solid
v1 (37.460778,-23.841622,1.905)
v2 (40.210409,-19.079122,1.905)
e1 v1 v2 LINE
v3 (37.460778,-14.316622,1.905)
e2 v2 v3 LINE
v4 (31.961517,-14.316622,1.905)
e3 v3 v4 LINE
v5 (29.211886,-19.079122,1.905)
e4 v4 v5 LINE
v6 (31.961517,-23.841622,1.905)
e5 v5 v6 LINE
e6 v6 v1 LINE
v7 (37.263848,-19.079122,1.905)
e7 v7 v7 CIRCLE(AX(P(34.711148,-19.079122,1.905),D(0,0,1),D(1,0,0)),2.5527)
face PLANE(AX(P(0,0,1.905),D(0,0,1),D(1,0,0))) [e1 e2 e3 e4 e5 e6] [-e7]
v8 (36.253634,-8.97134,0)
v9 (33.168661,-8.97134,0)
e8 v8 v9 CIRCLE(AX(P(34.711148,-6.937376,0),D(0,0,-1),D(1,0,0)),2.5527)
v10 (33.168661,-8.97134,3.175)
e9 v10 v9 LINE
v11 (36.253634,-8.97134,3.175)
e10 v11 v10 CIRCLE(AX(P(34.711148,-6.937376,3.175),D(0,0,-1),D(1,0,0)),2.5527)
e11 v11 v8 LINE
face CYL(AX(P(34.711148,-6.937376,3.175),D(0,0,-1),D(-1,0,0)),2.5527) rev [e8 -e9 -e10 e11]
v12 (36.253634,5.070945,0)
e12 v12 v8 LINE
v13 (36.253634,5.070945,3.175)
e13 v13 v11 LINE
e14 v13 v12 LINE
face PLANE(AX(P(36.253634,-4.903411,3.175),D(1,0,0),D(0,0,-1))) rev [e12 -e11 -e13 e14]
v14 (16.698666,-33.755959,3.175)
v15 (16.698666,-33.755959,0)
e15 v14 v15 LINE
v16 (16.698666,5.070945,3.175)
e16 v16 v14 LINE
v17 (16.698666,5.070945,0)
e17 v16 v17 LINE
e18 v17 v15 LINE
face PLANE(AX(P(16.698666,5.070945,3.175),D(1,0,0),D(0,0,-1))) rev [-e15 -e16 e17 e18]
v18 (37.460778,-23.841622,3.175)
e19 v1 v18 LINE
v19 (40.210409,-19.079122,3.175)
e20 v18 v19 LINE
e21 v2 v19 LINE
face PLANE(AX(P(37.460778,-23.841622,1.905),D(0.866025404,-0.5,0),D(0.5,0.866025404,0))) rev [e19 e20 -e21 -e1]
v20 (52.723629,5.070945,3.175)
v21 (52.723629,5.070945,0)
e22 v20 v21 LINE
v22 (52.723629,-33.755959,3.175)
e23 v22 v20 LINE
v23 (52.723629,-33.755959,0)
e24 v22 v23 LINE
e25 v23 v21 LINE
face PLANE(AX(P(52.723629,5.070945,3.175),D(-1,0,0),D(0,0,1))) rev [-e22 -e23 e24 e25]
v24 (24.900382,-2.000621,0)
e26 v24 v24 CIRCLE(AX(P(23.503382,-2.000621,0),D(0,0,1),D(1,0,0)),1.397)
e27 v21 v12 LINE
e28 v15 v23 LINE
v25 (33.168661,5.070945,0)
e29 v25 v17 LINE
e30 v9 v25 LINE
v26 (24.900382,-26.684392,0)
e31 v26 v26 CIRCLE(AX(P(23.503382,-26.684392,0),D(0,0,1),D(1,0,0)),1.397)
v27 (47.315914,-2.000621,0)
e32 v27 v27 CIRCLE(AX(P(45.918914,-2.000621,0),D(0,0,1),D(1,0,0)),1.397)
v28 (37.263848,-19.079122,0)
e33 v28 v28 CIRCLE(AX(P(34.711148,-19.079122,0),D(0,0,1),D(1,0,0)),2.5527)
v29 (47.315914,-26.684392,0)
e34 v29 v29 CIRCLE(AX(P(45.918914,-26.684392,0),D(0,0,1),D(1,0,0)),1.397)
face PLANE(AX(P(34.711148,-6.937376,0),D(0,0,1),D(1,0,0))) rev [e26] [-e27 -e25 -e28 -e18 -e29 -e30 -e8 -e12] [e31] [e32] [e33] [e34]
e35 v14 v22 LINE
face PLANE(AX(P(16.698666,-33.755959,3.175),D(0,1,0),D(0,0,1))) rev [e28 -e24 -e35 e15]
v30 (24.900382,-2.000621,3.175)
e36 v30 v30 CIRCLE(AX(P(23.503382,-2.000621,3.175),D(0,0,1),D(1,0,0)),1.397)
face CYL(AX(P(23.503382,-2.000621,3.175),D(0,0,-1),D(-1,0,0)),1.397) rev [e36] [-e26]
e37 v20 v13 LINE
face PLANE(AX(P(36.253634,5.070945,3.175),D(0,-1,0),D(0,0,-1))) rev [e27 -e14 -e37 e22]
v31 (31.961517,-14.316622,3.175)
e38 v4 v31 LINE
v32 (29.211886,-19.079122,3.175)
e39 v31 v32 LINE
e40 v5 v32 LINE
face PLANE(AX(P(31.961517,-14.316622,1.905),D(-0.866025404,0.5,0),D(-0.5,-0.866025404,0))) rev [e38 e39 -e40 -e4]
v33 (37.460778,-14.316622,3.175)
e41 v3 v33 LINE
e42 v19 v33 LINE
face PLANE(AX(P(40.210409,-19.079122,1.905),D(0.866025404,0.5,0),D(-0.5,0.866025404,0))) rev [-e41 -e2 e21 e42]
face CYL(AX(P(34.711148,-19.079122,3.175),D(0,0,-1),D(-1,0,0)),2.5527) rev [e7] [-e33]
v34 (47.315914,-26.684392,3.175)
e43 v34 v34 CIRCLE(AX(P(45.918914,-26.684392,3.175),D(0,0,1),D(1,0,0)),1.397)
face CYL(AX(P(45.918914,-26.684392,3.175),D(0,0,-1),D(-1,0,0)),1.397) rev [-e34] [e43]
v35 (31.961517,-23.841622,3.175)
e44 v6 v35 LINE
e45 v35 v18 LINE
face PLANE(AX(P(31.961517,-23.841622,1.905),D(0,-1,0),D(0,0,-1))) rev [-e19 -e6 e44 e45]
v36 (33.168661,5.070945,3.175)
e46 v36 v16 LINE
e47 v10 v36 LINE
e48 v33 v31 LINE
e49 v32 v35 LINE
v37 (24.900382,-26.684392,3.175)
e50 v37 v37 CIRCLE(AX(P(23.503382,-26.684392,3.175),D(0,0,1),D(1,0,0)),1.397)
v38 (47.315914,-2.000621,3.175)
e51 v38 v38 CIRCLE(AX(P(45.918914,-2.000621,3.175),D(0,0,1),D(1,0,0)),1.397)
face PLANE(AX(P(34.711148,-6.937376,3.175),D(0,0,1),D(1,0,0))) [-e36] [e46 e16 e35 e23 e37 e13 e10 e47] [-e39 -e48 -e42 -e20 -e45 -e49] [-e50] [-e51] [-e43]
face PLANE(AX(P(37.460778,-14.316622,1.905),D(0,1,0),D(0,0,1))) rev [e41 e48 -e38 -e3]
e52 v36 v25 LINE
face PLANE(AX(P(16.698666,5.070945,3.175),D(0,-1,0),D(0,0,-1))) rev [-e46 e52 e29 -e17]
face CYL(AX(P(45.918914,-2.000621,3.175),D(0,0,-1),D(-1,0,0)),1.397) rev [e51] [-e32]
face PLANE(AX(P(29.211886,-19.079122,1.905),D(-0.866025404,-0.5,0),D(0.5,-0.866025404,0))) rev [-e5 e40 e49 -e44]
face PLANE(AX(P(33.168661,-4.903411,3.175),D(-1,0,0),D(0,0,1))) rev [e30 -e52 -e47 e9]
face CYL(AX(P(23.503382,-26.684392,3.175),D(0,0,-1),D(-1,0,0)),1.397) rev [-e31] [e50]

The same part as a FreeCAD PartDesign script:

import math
import FreeCAD as App
import Part
import Sketcher
from FreeCAD import Vector
Q = App.Units.Quantity

doc = App.newDocument("Part")
body = doc.addObject("PartDesign::Body", "Body")

# Sketch on XY plane
sketch1 = doc.addObject("Sketcher::SketchObject", "Sketch")
body.addObject(sketch1)
sketch1.AttachmentSupport = (doc.XY_Plane, [""])
sketch1.MapMode = "FlatFace"
sketch1.addGeometry([
    Part.LineSegment(Vector(33.2, 5.1, 0), Vector(16.7, 5.1, 0)),  # 0
    Part.LineSegment(Vector(16.7, 5.1, 0), Vector(16.7, -33.8, 0)),  # 1
    Part.LineSegment(Vector(16.7, -33.8, 0), Vector(52.7, -33.8, 0)),  # 2
    Part.LineSegment(Vector(52.7, -33.8, 0), Vector(52.7, 5.1, 0)),  # 3
    Part.LineSegment(Vector(52.7, 5.1, 0), Vector(36.3, 5.1, 0)),  # 4
    Part.LineSegment(Vector(36.3, 5.1, 0), Vector(36.3, -9, 0)),  # 5
    Part.ArcOfCircle(Part.Circle(Vector(34.7, -6.9, 0), Vector(0, 0, 1), 2.6), math.radians(-127), math.radians(-53)),  # 6
    Part.LineSegment(Vector(33.2, -9, 0), Vector(33.2, 5.1, 0)),  # 7
    Part.Circle(Vector(45.9, -26.7, 0), Vector(0, 0, 1), 1.4),  # 8
    Part.Circle(Vector(23.5, -26.7, 0), Vector(0, 0, 1), 1.4),  # 9
    Part.Circle(Vector(34.7, -19.1, 0), Vector(0, 0, 1), 2.6),  # 10
    Part.Circle(Vector(45.9, -2, 0), Vector(0, 0, 1), 1.4),  # 11
    Part.Circle(Vector(23.5, -2, 0), Vector(0, 0, 1), 1.4),  # 12
], False)
sketch1.addConstraint([
    Sketcher.Constraint("Coincident", 0, 2, 1, 1),
    Sketcher.Constraint("Coincident", 1, 2, 2, 1),
    Sketcher.Constraint("Coincident", 2, 2, 3, 1),
    Sketcher.Constraint("Coincident", 3, 2, 4, 1),
    Sketcher.Constraint("Coincident", 4, 2, 5, 1),
    Sketcher.Constraint("Coincident", 5, 2, 6, 2),
    Sketcher.Constraint("Coincident", 6, 1, 7, 1),
    Sketcher.Constraint("Coincident", 7, 2, 0, 1),
    Sketcher.Constraint("Horizontal", 0),
    Sketcher.Constraint("Vertical", 1),
    Sketcher.Constraint("Horizontal", 2),
    Sketcher.Constraint("Vertical", 3),
    Sketcher.Constraint("Horizontal", 4),
    Sketcher.Constraint("Vertical", 5),
    Sketcher.Constraint("Vertical", 7),
    Sketcher.Constraint("Equal", 8, 9),
    Sketcher.Constraint("Equal", 6, 10),
    Sketcher.Constraint("Equal", 9, 11),
    Sketcher.Constraint("Equal", 11, 12),
    Sketcher.Constraint("Horizontal", 8, 3, 9, 3),
    Sketcher.Constraint("Horizontal", 11, 3, 12, 3),
    Sketcher.Constraint("Horizontal", 0, 2, 3, 2),
    Sketcher.Constraint("Horizontal", 5, 2, 6, 1),
    Sketcher.Constraint("Vertical", 6, 3, 10, 3),
    Sketcher.Constraint("Vertical", 8, 3, 11, 3),
    Sketcher.Constraint("Vertical", 9, 3, 12, 3),
    Sketcher.Constraint("Equal", 0, 4),
    Sketcher.Constraint("Diameter", 8, Q("0.11 in")),
    Sketcher.Constraint("Diameter", 10, Q("0.201 in")),
    Sketcher.Constraint("DistanceY", 10, 3, 11, 3, Q("17.078501 mm")),
    Sketcher.Constraint("DistanceX", 0, 2, 0, 1, Q("16.469995 mm")),
    Sketcher.Constraint("DistanceX", 2, 1, 2, 2, Q("36.024963 mm")),
    Sketcher.Constraint("DistanceY", 1, 2, 1, 1, Q("38.826904 mm")),
    Sketcher.Constraint("DistanceY", 5, 2, 5, 1, Q("14.042286 mm")),
    Sketcher.Constraint("DistanceX", -1, 1, 9, 3, Q("23.503382 mm")),
    Sketcher.Constraint("DistanceY", 11, 3, -1, 1, Q("2.000621 mm")),
    Sketcher.Constraint("DistanceY", 1, 2, -1, 1, Q("33.755959 mm")),
    Sketcher.Constraint("DistanceX", -1, 1, 2, 2, Q("52.723629 mm")),
    Sketcher.Constraint("DistanceY", 8, 3, 10, 3, Q("7.60527 mm")),
    Sketcher.Constraint("DistanceX", 4, 2, 11, 3, Q("9.66528 mm")),
])
pad1 = doc.addObject("PartDesign::Pad", "Pad")
body.addObject(pad1)
pad1.Profile = sketch1
pad1.Length = Q("0.125 in")

# Sketch on XY plane
sketch2 = doc.addObject("Sketcher::SketchObject", "Sketch001")
body.addObject(sketch2)
sketch2.AttachmentSupport = (doc.XY_Plane, [""])
sketch2.MapMode = "FlatFace"
sketch2.AttachmentOffset = App.Placement(Vector(0, 0, 0.125 * 25.4), App.Rotation())
sketch2.addGeometry([
    Part.LineSegment(Vector(40, -19, 0), Vector(37, -14, 0)),  # 0
    Part.LineSegment(Vector(37, -14, 0), Vector(32, -14, 0)),  # 1
    Part.LineSegment(Vector(32, -14, 0), Vector(29, -19, 0)),  # 2
    Part.LineSegment(Vector(29, -19, 0), Vector(32, -24, 0)),  # 3
    Part.LineSegment(Vector(32, -24, 0), Vector(37, -24, 0)),  # 4
    Part.LineSegment(Vector(37, -24, 0), Vector(40, -19, 0)),  # 5
], False)
sketch2.addConstraint([
    Sketcher.Constraint("Coincident", 0, 2, 1, 1),
    Sketcher.Constraint("Coincident", 1, 2, 2, 1),
    Sketcher.Constraint("Coincident", 2, 2, 3, 1),
    Sketcher.Constraint("Coincident", 3, 2, 4, 1),
    Sketcher.Constraint("Coincident", 4, 2, 5, 1),
    Sketcher.Constraint("Coincident", 5, 2, 0, 1),
    Sketcher.Constraint("Horizontal", 1),
    Sketcher.Constraint("Horizontal", 4),
    Sketcher.Constraint("Parallel", 0, 3),
    Sketcher.Constraint("Parallel", 2, 5),
    Sketcher.Constraint("Horizontal", 2, 2, 5, 2),
    Sketcher.Constraint("Vertical", 1, 2, 3, 2),
    Sketcher.Constraint("Vertical", 0, 2, 4, 2),
    Sketcher.Constraint("Angle", 0, Q("120 deg")),
    Sketcher.Constraint("DistanceY", 2, 2, 1, 2, Q("0.1875 in")),
    Sketcher.Constraint("DistanceX", 1, 2, 1, 1, Q("5.499261 mm")),
    Sketcher.Constraint("DistanceX", -1, 1, 0, 2, Q("37.460778 mm")),
    Sketcher.Constraint("DistanceY", 0, 2, -1, 1, Q("14.316622 mm")),
])
pocket1 = doc.addObject("PartDesign::Pocket", "Pocket")
body.addObject(pocket1)
pocket1.Profile = sketch2
pocket1.Length = Q("0.05 in")

doc.recompute()
